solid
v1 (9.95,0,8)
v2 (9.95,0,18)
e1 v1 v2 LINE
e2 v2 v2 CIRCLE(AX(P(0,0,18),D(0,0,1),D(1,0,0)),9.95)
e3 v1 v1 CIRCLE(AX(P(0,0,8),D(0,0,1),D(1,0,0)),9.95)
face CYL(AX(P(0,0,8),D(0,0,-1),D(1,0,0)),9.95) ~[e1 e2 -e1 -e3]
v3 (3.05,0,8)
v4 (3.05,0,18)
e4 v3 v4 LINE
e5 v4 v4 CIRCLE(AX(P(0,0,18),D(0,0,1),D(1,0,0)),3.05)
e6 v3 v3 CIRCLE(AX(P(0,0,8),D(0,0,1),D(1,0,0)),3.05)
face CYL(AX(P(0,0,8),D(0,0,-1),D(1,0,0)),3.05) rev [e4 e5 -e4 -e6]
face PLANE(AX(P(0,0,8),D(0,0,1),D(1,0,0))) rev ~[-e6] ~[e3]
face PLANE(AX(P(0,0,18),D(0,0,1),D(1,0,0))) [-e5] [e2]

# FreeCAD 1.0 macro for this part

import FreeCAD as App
import Part
import Sketcher
Q = App.Units.Quantity

doc = App.newDocument("Part")
body = doc.addObject("PartDesign::Body", "Body")

# Sketch on XY plane
sketch1 = body.newObject("Sketcher::SketchObject", "Sketch")
sketch1.AttachmentSupport = (doc.getObject("XY_Plane"), [""])
sketch1.MapMode = "FlatFace"
sketch1.AttachmentOffset = App.Placement(App.Vector(0, 0, 8), App.Rotation())
sketch1.addGeometry(Part.Circle(App.Vector(0, 0, 0), App.Vector(0, 0, 1), 9.9), False)
sketch1.addGeometry(Part.Circle(App.Vector(0, 0, 0), App.Vector(0, 0, 1), 3), False)
sketch1.addConstraint(Sketcher.Constraint("Coincident", 0, 3, -1, 1))
sketch1.addConstraint(Sketcher.Constraint("Coincident", 1, 3, -1, 1))
sketch1.addConstraint(Sketcher.Constraint("Diameter", 0, Q("19.9 mm")))
sketch1.addConstraint(Sketcher.Constraint("Diameter", 1, Q("6.1 mm")))
pad1 = body.newObject("PartDesign::Pad", "Pad")
pad1.Profile = sketch1
pad1.Length = 10

doc.recompute()
